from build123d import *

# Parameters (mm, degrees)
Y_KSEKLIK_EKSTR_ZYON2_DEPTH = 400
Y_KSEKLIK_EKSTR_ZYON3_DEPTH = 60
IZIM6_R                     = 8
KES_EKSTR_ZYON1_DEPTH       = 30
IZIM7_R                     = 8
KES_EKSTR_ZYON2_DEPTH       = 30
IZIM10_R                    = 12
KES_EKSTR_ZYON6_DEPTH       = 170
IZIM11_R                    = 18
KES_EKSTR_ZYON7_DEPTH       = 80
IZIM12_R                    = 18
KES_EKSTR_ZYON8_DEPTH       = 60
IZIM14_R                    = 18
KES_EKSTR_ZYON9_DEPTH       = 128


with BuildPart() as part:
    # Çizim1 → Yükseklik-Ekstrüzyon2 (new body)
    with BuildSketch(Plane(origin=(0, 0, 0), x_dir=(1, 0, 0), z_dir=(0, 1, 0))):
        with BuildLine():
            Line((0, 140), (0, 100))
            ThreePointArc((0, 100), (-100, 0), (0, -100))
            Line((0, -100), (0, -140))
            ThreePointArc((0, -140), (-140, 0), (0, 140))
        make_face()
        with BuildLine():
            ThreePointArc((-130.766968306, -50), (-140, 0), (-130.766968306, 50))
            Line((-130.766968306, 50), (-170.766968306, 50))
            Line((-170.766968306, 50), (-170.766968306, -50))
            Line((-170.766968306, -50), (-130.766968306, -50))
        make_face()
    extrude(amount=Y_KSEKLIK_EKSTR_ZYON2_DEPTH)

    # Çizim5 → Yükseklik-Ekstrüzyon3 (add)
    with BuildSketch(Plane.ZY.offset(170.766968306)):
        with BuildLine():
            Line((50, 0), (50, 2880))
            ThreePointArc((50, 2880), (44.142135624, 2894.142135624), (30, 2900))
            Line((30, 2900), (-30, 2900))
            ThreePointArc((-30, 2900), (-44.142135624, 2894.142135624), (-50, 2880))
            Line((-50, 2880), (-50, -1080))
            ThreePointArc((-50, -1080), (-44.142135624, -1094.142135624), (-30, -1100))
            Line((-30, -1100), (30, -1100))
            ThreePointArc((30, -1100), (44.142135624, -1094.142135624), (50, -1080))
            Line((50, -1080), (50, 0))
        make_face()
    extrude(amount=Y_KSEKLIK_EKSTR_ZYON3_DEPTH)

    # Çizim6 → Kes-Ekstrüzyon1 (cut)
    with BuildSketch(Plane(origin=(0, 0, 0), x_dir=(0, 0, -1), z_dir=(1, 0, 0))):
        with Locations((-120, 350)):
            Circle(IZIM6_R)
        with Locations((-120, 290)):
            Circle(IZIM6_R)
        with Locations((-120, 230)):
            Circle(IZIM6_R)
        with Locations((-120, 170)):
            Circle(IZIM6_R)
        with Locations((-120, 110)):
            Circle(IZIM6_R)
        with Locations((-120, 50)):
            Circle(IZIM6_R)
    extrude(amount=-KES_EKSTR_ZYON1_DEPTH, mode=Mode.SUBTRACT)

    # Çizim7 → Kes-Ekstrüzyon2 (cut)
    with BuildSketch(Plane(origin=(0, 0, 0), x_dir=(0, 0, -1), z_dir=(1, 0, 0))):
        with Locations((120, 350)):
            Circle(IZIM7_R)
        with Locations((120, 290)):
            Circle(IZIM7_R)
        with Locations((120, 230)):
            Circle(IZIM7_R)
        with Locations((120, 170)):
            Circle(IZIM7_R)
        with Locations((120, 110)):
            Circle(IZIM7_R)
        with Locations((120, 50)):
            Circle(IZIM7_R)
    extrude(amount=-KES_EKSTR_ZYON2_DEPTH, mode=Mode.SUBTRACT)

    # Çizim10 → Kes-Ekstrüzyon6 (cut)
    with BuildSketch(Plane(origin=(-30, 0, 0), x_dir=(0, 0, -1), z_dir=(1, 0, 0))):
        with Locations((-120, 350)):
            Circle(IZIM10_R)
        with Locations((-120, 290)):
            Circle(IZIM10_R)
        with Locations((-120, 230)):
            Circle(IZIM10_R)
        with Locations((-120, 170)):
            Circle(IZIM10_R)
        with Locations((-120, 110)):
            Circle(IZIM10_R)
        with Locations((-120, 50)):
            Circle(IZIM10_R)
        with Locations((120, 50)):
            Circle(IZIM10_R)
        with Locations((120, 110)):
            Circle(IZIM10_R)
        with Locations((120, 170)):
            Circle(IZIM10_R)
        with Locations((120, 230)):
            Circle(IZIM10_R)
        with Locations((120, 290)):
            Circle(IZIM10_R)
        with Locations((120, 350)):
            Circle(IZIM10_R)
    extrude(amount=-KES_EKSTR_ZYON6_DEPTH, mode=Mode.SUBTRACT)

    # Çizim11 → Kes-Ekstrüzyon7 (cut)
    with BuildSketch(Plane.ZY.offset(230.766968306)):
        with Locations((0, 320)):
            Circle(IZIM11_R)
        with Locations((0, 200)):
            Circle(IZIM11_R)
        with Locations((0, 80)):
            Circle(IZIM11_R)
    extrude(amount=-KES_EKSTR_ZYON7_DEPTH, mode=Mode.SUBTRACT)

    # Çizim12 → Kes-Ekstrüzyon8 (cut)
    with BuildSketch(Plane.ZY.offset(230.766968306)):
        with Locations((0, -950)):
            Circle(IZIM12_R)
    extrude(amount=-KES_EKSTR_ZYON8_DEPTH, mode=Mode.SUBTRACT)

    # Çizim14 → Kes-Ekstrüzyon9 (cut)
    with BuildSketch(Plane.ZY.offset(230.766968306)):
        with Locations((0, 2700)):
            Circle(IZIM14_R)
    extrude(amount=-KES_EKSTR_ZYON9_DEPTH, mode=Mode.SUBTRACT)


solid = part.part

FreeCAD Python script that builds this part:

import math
import FreeCAD as App
import Part
import Sketcher
from FreeCAD import Vector

doc = App.newDocument("Part")
body = doc.addObject("PartDesign::Body", "Body")

# Sketch on XZ plane
sketch1 = body.newObject("Sketcher::SketchObject", "Sketch")
sketch1.AttachmentSupport = (doc.getObject("XZ_Plane"), [""])
sketch1.MapMode = "FlatFace"
sketch1.addGeometry([
    Part.LineSegment(Vector(0, -100, 0), Vector(0, -140, 0)),  # 0
    Part.ArcOfCircle(Part.Circle(Vector(0, 0, 0), Vector(0, 0, 1), 140), math.radians(-159), math.radians(-90)),  # 1
    Part.LineSegment(Vector(-131, -50, 0), Vector(-171, -50, 0)),  # 2
    Part.LineSegment(Vector(-171, -50, 0), Vector(-171, 50, 0)),  # 3
    Part.LineSegment(Vector(-171, 50, 0), Vector(-131, 50, 0)),  # 4
    Part.ArcOfCircle(Part.Circle(Vector(0, 0, 0), Vector(0, 0, 1), 140), math.radians(90), math.radians(159)),  # 5
    Part.LineSegment(Vector(0, 140, 0), Vector(0, 100, 0)),  # 6
    Part.ArcOfCircle(Part.Circle(Vector(0, 0, 0), Vector(0, 0, 1), 100), math.radians(90), math.radians(270)),  # 7
], False)
sketch1.addConstraint([
    Sketcher.Constraint("Coincident", 0, 2, 1, 2),
    Sketcher.Constraint("Coincident", 1, 1, 2, 1),
    Sketcher.Constraint("Coincident", 2, 2, 3, 1),
    Sketcher.Constraint("Coincident", 3, 2, 4, 1),
    Sketcher.Constraint("Coincident", 4, 2, 5, 2),
    Sketcher.Constraint("Coincident", 5, 1, 6, 1),
    Sketcher.Constraint("Coincident", 6, 2, 7, 1),
    Sketcher.Constraint("Coincident", 7, 2, 0, 1),
    Sketcher.Constraint("Vertical", 0),
    Sketcher.Constraint("Horizontal", 2),
    Sketcher.Constraint("Vertical", 3),
    Sketcher.Constraint("Horizontal", 4),
    Sketcher.Constraint("Vertical", 6),
    Sketcher.Constraint("Coincident", 1, 3, -1, 1),
    Sketcher.Constraint("Coincident", 5, 3, -1, 1),
    Sketcher.Constraint("Coincident", 7, 3, -1, 1),
    Sketcher.Constraint("Equal", 1, 5),
    Sketcher.Constraint("PointOnObject", 0, 2, -2),
    Sketcher.Constraint("PointOnObject", 5, 1, -2),
    Sketcher.Constraint("Vertical", 1, 1, 4, 2),
    Sketcher.Constraint("Equal", 4, 0),
    Sketcher.Constraint("Radius", 1, 140.0),
    Sketcher.Constraint("Radius", 7, 100.0),
    Sketcher.Constraint("DistanceY", 3, 1, 3, 2, 100.0),
])
pad1 = body.newObject("PartDesign::Pad", "Pad")
pad1.Profile = sketch1
pad1.Length = 400
pad1.Reversed = True

# Sketch on YZ plane
sketch2 = body.newObject("Sketcher::SketchObject", "Sketch001")
sketch2.AttachmentSupport = (doc.getObject("YZ_Plane"), [""])
sketch2.MapMode = "FlatFace"
sketch2.AttachmentOffset = App.Placement(Vector(0, 0, -170.766968), App.Rotation())
sketch2.addGeometry([
    Part.ArcOfCircle(Part.Circle(Vector(2880, 30, 0), Vector(0, 0, 1), 20), math.radians(0), math.radians(90)),  # 0
    Part.LineSegment(Vector(2900, 30, 0), Vector(2900, -30, 0)),  # 1
    Part.ArcOfCircle(Part.Circle(Vector(2880, -30, 0), Vector(0, 0, 1), 20), math.radians(-90), math.radians(0)),  # 2
    Part.LineSegment(Vector(2880, -50, 0), Vector(-1080, -50, 0)),  # 3
    Part.ArcOfCircle(Part.Circle(Vector(-1080, -30, 0), Vector(0, 0, 1), 20), math.radians(180), math.radians(270)),  # 4
    Part.LineSegment(Vector(-1100, -30, 0), Vector(-1100, 30, 0)),  # 5
    Part.ArcOfCircle(Part.Circle(Vector(-1080, 30, 0), Vector(0, 0, 1), 20), math.radians(90), math.radians(180)),  # 6
    Part.LineSegment(Vector(-1080, 50, 0), Vector(2880, 50, 0)),  # 7
], False)
sketch2.addConstraint([
    Sketcher.Constraint("Tangent", 0, 1, 1, 1),
    Sketcher.Constraint("Tangent", 1, 2, 2, 2),
    Sketcher.Constraint("Tangent", 2, 1, 3, 1),
    Sketcher.Constraint("Tangent", 3, 2, 4, 2),
    Sketcher.Constraint("Tangent", 4, 1, 5, 1),
    Sketcher.Constraint("Tangent", 5, 2, 6, 2),
    Sketcher.Constraint("Tangent", 6, 1, 7, 1),
    Sketcher.Constraint("Tangent", 7, 2, 0, 2),
    Sketcher.Constraint("Vertical", 1),
    Sketcher.Constraint("Horizontal", 3),
    Sketcher.Constraint("Vertical", 5),
    Sketcher.Constraint("Horizontal", 7),
    Sketcher.Constraint("Equal", 0, 2),
    Sketcher.Constraint("Equal", 2, 4),
    Sketcher.Constraint("Equal", 4, 6),
    Sketcher.Constraint("Radius", 0, 20.0),
    Sketcher.Constraint("DistanceX", 3, 2, 3, 1, 3960.0),
    Sketcher.Constraint("DistanceY", 1, 2, 1, 1, 60.0),
    Sketcher.Constraint("DistanceX", -1, 1, 0, 3, 2880.0),
    Sketcher.Constraint("DistanceY", -1, 1, 0, 3, 30.0),
])
pad2 = body.newObject("PartDesign::Pad", "Pad001")
pad2.Profile = sketch2
pad2.Length = 60
pad2.Reversed = True

# Sketch on YZ plane
sketch3 = body.newObject("Sketcher::SketchObject", "Sketch002")
sketch3.AttachmentSupport = (doc.getObject("YZ_Plane"), [""])
sketch3.MapMode = "FlatFace"
sketch3.addGeometry([
    Part.Circle(Vector(350, 120, 0), Vector(0, 0, 1), 8),  # 0
    Part.Circle(Vector(290, 120, 0), Vector(0, 0, 1), 8),  # 1
    Part.Circle(Vector(230, 120, 0), Vector(0, 0, 1), 8),  # 2
    Part.Circle(Vector(170, 120, 0), Vector(0, 0, 1), 8),  # 3
    Part.Circle(Vector(110, 120, 0), Vector(0, 0, 1), 8),  # 4
    Part.Circle(Vector(50, 120, 0), Vector(0, 0, 1), 8),  # 5
], False)
sketch3.addConstraint([
    Sketcher.Constraint("Equal", 0, 1),
    Sketcher.Constraint("Equal", 1, 2),
    Sketcher.Constraint("Equal", 2, 3),
    Sketcher.Constraint("Equal", 3, 4),
    Sketcher.Constraint("Equal", 4, 5),
    Sketcher.Constraint("Horizontal", 0, 3, 1, 3),
    Sketcher.Constraint("Horizontal", 1, 3, 2, 3),
    Sketcher.Constraint("Horizontal", 2, 3, 3, 3),
    Sketcher.Constraint("Horizontal", 3, 3, 4, 3),
    Sketcher.Constraint("Horizontal", 4, 3, 5, 3),
    Sketcher.Constraint("Diameter", 0, 16.0),
    Sketcher.Constraint("DistanceX", -1, 1, 0, 3, 350.0),
    Sketcher.Constraint("DistanceY", -1, 1, 0, 3, 120.0),
    Sketcher.Constraint("DistanceX", -1, 1, 1, 3, 290.0),
    Sketcher.Constraint("DistanceX", -1, 1, 2, 3, 230.0),
    Sketcher.Constraint("DistanceX", -1, 1, 3, 3, 170.0),
    Sketcher.Constraint("DistanceX", -1, 1, 4, 3, 110.0),
    Sketcher.Constraint("DistanceX", -1, 1, 5, 3, 50.0),
])
pocket1 = body.newObject("PartDesign::Pocket", "Pocket")
pocket1.Profile = sketch3
pocket1.Length = 30

# Sketch on YZ plane
sketch4 = body.newObject("Sketcher::SketchObject", "Sketch003")
sketch4.AttachmentSupport = (doc.getObject("YZ_Plane"), [""])
sketch4.MapMode = "FlatFace"
sketch4.addGeometry([
    Part.Circle(Vector(350, -120, 0), Vector(0, 0, 1), 8),  # 0
    Part.Circle(Vector(290, -120, 0), Vector(0, 0, 1), 8),  # 1
    Part.Circle(Vector(230, -120, 0), Vector(0, 0, 1), 8),  # 2
    Part.Circle(Vector(170, -120, 0), Vector(0, 0, 1), 8),  # 3
    Part.Circle(Vector(110, -120, 0), Vector(0, 0, 1), 8),  # 4
    Part.Circle(Vector(50, -120, 0), Vector(0, 0, 1), 8),  # 5
], False)
sketch4.addConstraint([
    Sketcher.Constraint("Equal", 0, 1),
    Sketcher.Constraint("Equal", 1, 2),
    Sketcher.Constraint("Equal", 2, 3),
    Sketcher.Constraint("Equal", 3, 4),
    Sketcher.Constraint("Equal", 4, 5),
    Sketcher.Constraint("Horizontal", 0, 3, 1, 3),
    Sketcher.Constraint("Horizontal", 1, 3, 2, 3),
    Sketcher.Constraint("Horizontal", 2, 3, 3, 3),
    Sketcher.Constraint("Horizontal", 3, 3, 4, 3),
    Sketcher.Constraint("Horizontal", 4, 3, 5, 3),
    Sketcher.Constraint("Diameter", 0, 16.0),
    Sketcher.Constraint("DistanceX", -1, 1, 0, 3, 350.0),
    Sketcher.Constraint("DistanceY", 0, 3, -1, 1, 120.0),
    Sketcher.Constraint("DistanceX", -1, 1, 1, 3, 290.0),
    Sketcher.Constraint("DistanceX", -1, 1, 2, 3, 230.0),
    Sketcher.Constraint("DistanceX", -1, 1, 3, 3, 170.0),
    Sketcher.Constraint("DistanceX", -1, 1, 4, 3, 110.0),
    Sketcher.Constraint("DistanceX", -1, 1, 5, 3, 50.0),
])
pocket2 = body.newObject("PartDesign::Pocket", "Pocket001")
pocket2.Profile = sketch4
pocket2.Length = 30

# Sketch on YZ plane
sketch5 = body.newObject("Sketcher::SketchObject", "Sketch004")
sketch5.AttachmentSupport = (doc.getObject("YZ_Plane"), [""])
sketch5.MapMode = "FlatFace"
sketch5.AttachmentOffset = App.Placement(Vector(0, 0, -30), App.Rotation())
sketch5.addGeometry([
    Part.Circle(Vector(350, 120, 0), Vector(0, 0, 1), 12),  # 0
    Part.Circle(Vector(290, 120, 0), Vector(0, 0, 1), 12),  # 1
    Part.Circle(Vector(230, 120, 0), Vector(0, 0, 1), 12),  # 2
    Part.Circle(Vector(170, 120, 0), Vector(0, 0, 1), 12),  # 3
    Part.Circle(Vector(110, 120, 0), Vector(0, 0, 1), 12),  # 4
    Part.Circle(Vector(50, 120, 0), Vector(0, 0, 1), 12),  # 5
    Part.Circle(Vector(50, -120, 0), Vector(0, 0, 1), 12),  # 6
    Part.Circle(Vector(110, -120, 0), Vector(0, 0, 1), 12),  # 7
    Part.Circle(Vector(170, -120, 0), Vector(0, 0, 1), 12),  # 8
    Part.Circle(Vector(230, -120, 0), Vector(0, 0, 1), 12),  # 9
    Part.Circle(Vector(290, -120, 0), Vector(0, 0, 1), 12),  # 10
    Part.Circle(Vector(350, -120, 0), Vector(0, 0, 1), 12),  # 11
], False)
sketch5.addConstraint([
    Sketcher.Constraint("Equal", 0, 1),
    Sketcher.Constraint("Equal", 1, 2),
    Sketcher.Constraint("Equal", 2, 3),
    Sketcher.Constraint("Equal", 3, 4),
    Sketcher.Constraint("Equal", 4, 5),
    Sketcher.Constraint("Equal", 5, 6),
    Sketcher.Constraint("Equal", 6, 7),
    Sketcher.Constraint("Equal", 7, 8),
    Sketcher.Constraint("Equal", 8, 9),
    Sketcher.Constraint("Equal", 9, 10),
    Sketcher.Constraint("Equal", 10, 11),
    Sketcher.Constraint("Symmetric", 5, 3, 6, 3, -1),
    Sketcher.Constraint("Symmetric", 4, 3, 7, 3, -1),
    Sketcher.Constraint("Symmetric", 3, 3, 8, 3, -1),
    Sketcher.Constraint("Symmetric", 2, 3, 9, 3, -1),
    Sketcher.Constraint("Symmetric", 1, 3, 10, 3, -1),
    Sketcher.Constraint("Symmetric", 0, 3, 11, 3, -1),
    Sketcher.Constraint("Horizontal", 0, 3, 1, 3),
    Sketcher.Constraint("Horizontal", 1, 3, 2, 3),
    Sketcher.Constraint("Horizontal", 2, 3, 3, 3),
    Sketcher.Constraint("Horizontal", 3, 3, 4, 3),
    Sketcher.Constraint("Horizontal", 4, 3, 5, 3),
    Sketcher.Constraint("Diameter", 0, 24.0),
    Sketcher.Constraint("DistanceX", -1, 1, 0, 3, 350.0),
    Sketcher.Constraint("DistanceY", -1, 1, 0, 3, 120.0),
    Sketcher.Constraint("DistanceX", -1, 1, 1, 3, 290.0),
    Sketcher.Constraint("DistanceX", -1, 1, 2, 3, 230.0),
    Sketcher.Constraint("DistanceX", -1, 1, 3, 3, 170.0),
    Sketcher.Constraint("DistanceX", -1, 1, 4, 3, 110.0),
    Sketcher.Constraint("DistanceX", -1, 1, 5, 3, 50.0),
])
pocket3 = body.newObject("PartDesign::Pocket", "Pocket002")
pocket3.Profile = sketch5
pocket3.Length = 170

# Sketch on YZ plane
sketch6 = body.newObject("Sketcher::SketchObject", "Sketch005")
sketch6.AttachmentSupport = (doc.getObject("YZ_Plane"), [""])
sketch6.MapMode = "FlatFace"
sketch6.AttachmentOffset = App.Placement(Vector(0, 0, -230.766968), App.Rotation())
sketch6.addGeometry([
    Part.Circle(Vector(320, 0, 0), Vector(0, 0, 1), 18),
    Part.Circle(Vector(200, 0, 0), Vector(0, 0, 1), 18),
    Part.Circle(Vector(80, 0, 0), Vector(0, 0, 1), 18),
], False)
sketch6.addConstraint([
    Sketcher.Constraint("Equal", 0, 1),
    Sketcher.Constraint("Equal", 1, 2),
    Sketcher.Constraint("PointOnObject", 0, 3, -1),
    Sketcher.Constraint("PointOnObject", 1, 3, -1),
    Sketcher.Constraint("PointOnObject", 2, 3, -1),
    Sketcher.Constraint("Diameter", 0, 36.0),
    Sketcher.Constraint("DistanceX", -1, 1, 0, 3, 320.0),
    Sketcher.Constraint("DistanceX", -1, 1, 1, 3, 200.0),
    Sketcher.Constraint("DistanceX", -1, 1, 2, 3, 80.0),
])
pocket4 = body.newObject("PartDesign::Pocket", "Pocket003")
pocket4.Profile = sketch6
pocket4.Length = 80
pocket4.Reversed = True

# Sketch on YZ plane
sketch7 = body.newObject("Sketcher::SketchObject", "Sketch006")
sketch7.AttachmentSupport = (doc.getObject("YZ_Plane"), [""])
sketch7.MapMode = "FlatFace"
sketch7.AttachmentOffset = App.Placement(Vector(0, 0, -230.766968), App.Rotation())
sketch7.addGeometry(Part.Circle(Vector(-950, 0, 0), Vector(0, 0, 1), 18), False)
sketch7.addConstraint([
    Sketcher.Constraint("PointOnObject", 0, 3, -1),
    Sketcher.Constraint("Diameter", 0, 36.0),
    Sketcher.Constraint("DistanceX", 0, 3, -1, 1, 950.0),
])
pocket5 = body.newObject("PartDesign::Pocket", "Pocket004")
pocket5.Profile = sketch7
pocket5.Length = 60
pocket5.Reversed = True

# Sketch on YZ plane
sketch8 = body.newObject("Sketcher::SketchObject", "Sketch007")
sketch8.AttachmentSupport = (doc.getObject("YZ_Plane"), [""])
sketch8.MapMode = "FlatFace"
sketch8.AttachmentOffset = App.Placement(Vector(0, 0, -230.766968), App.Rotation())
sketch8.addGeometry(Part.Circle(Vector(2700, 0, 0), Vector(0, 0, 1), 18), False)
sketch8.addConstraint([
    Sketcher.Constraint("PointOnObject", 0, 3, -1),
    Sketcher.Constraint("Diameter", 0, 36.0),
    Sketcher.Constraint("DistanceX", -1, 1, 0, 3, 2700.0),
])
pocket6 = body.newObject("PartDesign::Pocket", "Pocket005")
pocket6.Profile = sketch8
pocket6.Length = 128
pocket6.Reversed = True

doc.recompute()
